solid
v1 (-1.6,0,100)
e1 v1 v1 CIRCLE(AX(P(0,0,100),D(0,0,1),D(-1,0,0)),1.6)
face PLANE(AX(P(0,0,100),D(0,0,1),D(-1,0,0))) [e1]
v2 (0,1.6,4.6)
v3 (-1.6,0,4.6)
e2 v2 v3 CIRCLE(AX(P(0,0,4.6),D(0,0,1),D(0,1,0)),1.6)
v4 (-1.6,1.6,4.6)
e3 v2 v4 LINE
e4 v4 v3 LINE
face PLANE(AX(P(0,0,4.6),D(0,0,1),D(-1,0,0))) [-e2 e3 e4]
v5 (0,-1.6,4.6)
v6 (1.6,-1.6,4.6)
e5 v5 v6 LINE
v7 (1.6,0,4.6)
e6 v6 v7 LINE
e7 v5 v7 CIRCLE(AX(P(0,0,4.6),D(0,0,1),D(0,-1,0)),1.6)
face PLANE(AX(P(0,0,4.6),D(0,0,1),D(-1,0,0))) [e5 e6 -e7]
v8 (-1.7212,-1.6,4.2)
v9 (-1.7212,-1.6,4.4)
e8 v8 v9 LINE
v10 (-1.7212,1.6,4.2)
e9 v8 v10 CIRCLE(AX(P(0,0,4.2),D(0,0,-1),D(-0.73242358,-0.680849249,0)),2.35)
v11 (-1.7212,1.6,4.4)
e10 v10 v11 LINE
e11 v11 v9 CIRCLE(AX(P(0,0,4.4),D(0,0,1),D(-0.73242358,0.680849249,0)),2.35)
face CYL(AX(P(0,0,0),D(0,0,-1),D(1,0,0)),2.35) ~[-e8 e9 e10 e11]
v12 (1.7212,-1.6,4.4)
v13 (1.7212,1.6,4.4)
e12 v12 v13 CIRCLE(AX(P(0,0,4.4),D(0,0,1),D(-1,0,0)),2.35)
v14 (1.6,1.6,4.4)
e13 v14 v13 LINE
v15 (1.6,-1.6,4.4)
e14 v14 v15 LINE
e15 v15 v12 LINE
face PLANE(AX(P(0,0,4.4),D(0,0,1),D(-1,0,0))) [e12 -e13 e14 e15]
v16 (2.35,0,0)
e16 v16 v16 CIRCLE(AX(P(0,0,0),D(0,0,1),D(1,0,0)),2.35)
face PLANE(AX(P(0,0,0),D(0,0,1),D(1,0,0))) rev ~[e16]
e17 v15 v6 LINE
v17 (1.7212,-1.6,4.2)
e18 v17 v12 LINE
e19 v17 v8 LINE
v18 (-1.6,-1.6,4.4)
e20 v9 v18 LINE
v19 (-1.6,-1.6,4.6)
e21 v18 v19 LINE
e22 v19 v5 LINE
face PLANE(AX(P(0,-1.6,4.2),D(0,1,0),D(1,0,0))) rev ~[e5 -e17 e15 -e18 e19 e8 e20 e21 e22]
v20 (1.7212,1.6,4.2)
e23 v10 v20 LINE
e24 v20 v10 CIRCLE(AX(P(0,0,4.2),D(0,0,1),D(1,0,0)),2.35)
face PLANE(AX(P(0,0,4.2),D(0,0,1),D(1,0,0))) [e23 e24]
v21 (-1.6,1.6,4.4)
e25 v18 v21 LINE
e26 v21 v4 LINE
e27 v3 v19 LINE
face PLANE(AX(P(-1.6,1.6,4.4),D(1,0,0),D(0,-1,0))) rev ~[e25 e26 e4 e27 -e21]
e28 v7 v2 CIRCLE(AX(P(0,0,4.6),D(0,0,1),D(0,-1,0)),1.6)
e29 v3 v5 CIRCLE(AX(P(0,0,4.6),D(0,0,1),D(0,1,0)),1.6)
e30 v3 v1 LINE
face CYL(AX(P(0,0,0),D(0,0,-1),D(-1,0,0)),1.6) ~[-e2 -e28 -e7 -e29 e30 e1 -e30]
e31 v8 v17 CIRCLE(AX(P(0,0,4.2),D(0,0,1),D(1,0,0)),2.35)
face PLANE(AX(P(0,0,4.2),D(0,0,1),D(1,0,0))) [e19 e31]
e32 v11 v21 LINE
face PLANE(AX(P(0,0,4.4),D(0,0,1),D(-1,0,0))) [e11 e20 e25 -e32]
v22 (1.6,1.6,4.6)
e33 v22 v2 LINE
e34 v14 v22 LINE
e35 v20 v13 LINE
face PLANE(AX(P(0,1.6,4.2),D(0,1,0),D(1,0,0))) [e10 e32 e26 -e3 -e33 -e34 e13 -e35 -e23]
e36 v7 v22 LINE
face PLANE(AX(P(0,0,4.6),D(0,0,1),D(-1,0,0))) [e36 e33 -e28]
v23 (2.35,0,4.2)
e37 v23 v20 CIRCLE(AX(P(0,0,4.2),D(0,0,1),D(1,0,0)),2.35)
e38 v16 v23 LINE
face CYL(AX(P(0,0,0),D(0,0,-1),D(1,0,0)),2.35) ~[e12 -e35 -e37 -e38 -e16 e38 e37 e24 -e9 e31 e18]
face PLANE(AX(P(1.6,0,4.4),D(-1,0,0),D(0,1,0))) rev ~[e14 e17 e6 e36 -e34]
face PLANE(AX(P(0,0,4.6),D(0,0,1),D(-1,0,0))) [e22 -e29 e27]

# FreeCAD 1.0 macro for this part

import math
import FreeCAD as App
import Part
import Sketcher

V = App.Vector

doc = App.newDocument("Part")
params = doc.addObject("Spreadsheet::Sheet", "Params")
for row, (alias, value) in enumerate([
    ("sketch1_diameter", "4.7 mm"),
    ("pad1_length", "4.2 mm"),
    ("sketch2_diameter", "3.2 mm"),
    ("pad2_length", "100 mm"),
    ("sketch3_radius", "1.6 mm"),
    ("sketch3_radius2", "2.35 mm"),
    ("pad3_length", "0.2 mm"),
    ("sketch4_radius", "1.6 mm"),
    ("pad4_length", "0.2 mm"),
], start=1):
    params.set(f"A{row}", alias)
    params.set(f"B{row}", "=" + value)
    params.setAlias(f"B{row}", alias)

body = doc.addObject("PartDesign::Body", "Body")

# Sketch on XY plane
sketch1 = body.newObject("Sketcher::SketchObject", "Sketch")
sketch1.AttachmentSupport = (doc.getObject("XY_Plane"), [""])
sketch1.MapMode = "FlatFace"
sketch1.addGeometry(Part.Circle(V(0, 0, 0), V(0, 0, 1), 2.4), False)
sketch1.addConstraint([
    Sketcher.Constraint("Coincident", 0, 3, -1, 1),
    Sketcher.Constraint("Diameter", 0, 4.7),
])
sketch1.setExpression("Constraints[1]", "Params.sketch1_diameter")
pad1 = body.newObject("PartDesign::Pad", "Pad")
pad1.Profile = sketch1
pad1.setExpression("Length", "Params.pad1_length")

# Sketch on XY plane
sketch2 = body.newObject("Sketcher::SketchObject", "Sketch001")
sketch2.AttachmentSupport = (doc.getObject("XY_Plane"), [""])
sketch2.MapMode = "FlatFace"
sketch2.addGeometry(Part.Circle(V(0, 0, 0), V(0, 0, 1), 1.6), False)
sketch2.addConstraint([
    Sketcher.Constraint("Coincident", 0, 3, -1, 1),
    Sketcher.Constraint("Diameter", 0, 3.2),
])
sketch2.setExpression("Constraints[1]", "Params.sketch2_diameter")
pad2 = body.newObject("PartDesign::Pad", "Pad001")
pad2.Profile = sketch2
pad2.setExpression("Length", "Params.pad2_length")

# Sketch on XY plane
sketch3 = body.newObject("Sketcher::SketchObject", "Sketch002")
sketch3.AttachmentSupport = (doc.getObject("XY_Plane"), [""])
sketch3.MapMode = "FlatFace"
sketch3.AttachmentOffset = App.Placement(V(0, 0, 4.2), App.Rotation())
sketch3.addGeometry([
    Part.ArcOfCircle(Part.Circle(V(0, 0, 0), V(0, 0, 1), 1.6), math.radians(90), math.radians(270)),  # 0
    Part.LineSegment(V(0, 1.6, 0), V(-1.7, 1.6, 0)),  # 1
    Part.ArcOfCircle(Part.Circle(V(0, 0, 0), V(0, 0, 1), 2.4), math.radians(137), math.radians(223)),  # 2
    Part.LineSegment(V(-1.7, -1.6, 0), V(0, -1.6, 0)),  # 3
    Part.ArcOfCircle(Part.Circle(V(0, 0, 0), V(0, 0, 1), 1.6), math.radians(-90), math.radians(90)),  # 4
    Part.LineSegment(V(0, -1.6, 0), V(1.7, -1.6, 0)),  # 5
    Part.ArcOfCircle(Part.Circle(V(0, 0, 0), V(0, 0, 1), 2.4), math.radians(-43), math.radians(43)),  # 6
    Part.LineSegment(V(1.7, 1.6, 0), V(0, 1.6, 0)),  # 7
], False)
sketch3.addConstraint([
    Sketcher.Constraint("Tangent", 0, 1, 1, 1),
    Sketcher.Constraint("Coincident", 1, 2, 2, 1),
    Sketcher.Constraint("Coincident", 2, 2, 3, 1),
    Sketcher.Constraint("Tangent", 3, 2, 0, 2),
    Sketcher.Constraint("Tangent", 4, 1, 5, 1),
    Sketcher.Constraint("Coincident", 5, 2, 6, 1),
    Sketcher.Constraint("Coincident", 6, 2, 7, 1),
    Sketcher.Constraint("Tangent", 7, 2, 4, 2),
    Sketcher.Constraint("Horizontal", 1),
    Sketcher.Constraint("Horizontal", 3),
    Sketcher.Constraint("Horizontal", 5),
    Sketcher.Constraint("Horizontal", 7),
    Sketcher.Constraint("Coincident", 0, 3, -1, 1),
    Sketcher.Constraint("Coincident", 2, 3, -1, 1),
    Sketcher.Constraint("Coincident", 4, 3, -1, 1),
    Sketcher.Constraint("Coincident", 6, 3, -1, 1),
    Sketcher.Constraint("Equal", 0, 4),
    Sketcher.Constraint("Equal", 2, 6),
    Sketcher.Constraint("Radius", 0, 1.6),
    Sketcher.Constraint("Radius", 2, 2.35),
])
sketch3.setExpression("Constraints[18]", "Params.sketch3_radius")
sketch3.setExpression("Constraints[19]", "Params.sketch3_radius2")
pad3 = body.newObject("PartDesign::Pad", "Pad002")
pad3.Profile = sketch3
pad3.setExpression("Length", "Params.pad3_length")

# Sketch on XY plane
sketch4 = body.newObject("Sketcher::SketchObject", "Sketch003")
sketch4.AttachmentSupport = (doc.getObject("XY_Plane"), [""])
sketch4.MapMode = "FlatFace"
sketch4.AttachmentOffset = App.Placement(V(0, 0, 4.4), App.Rotation())
sketch4.addGeometry([
    Part.LineSegment(V(0, 1.6, 0), V(-1.6, 1.6, 0)),  # 0
    Part.LineSegment(V(-1.6, 1.6, 0), V(-1.6, 0, 0)),  # 1
    Part.ArcOfCircle(Part.Circle(V(0, 0, 0), V(0, 0, 1), 1.6), math.radians(90), math.radians(180)),  # 2
    Part.LineSegment(V(-1.6, 0, 0), V(-1.6, -1.6, 0)),  # 3
    Part.LineSegment(V(-1.6, -1.6, 0), V(0, -1.6, 0)),  # 4
    Part.ArcOfCircle(Part.Circle(V(0, 0, 0), V(0, 0, 1), 1.6), math.radians(180), math.radians(270)),  # 5
    Part.LineSegment(V(1.6, 1.6, 0), V(0, 1.6, 0)),  # 6
    Part.ArcOfCircle(Part.Circle(V(0, 0, 0), V(0, 0, 1), 1.6), math.radians(0), math.radians(90)),  # 7
    Part.LineSegment(V(1.6, 0, 0), V(1.6, 1.6, 0)),  # 8
    Part.ArcOfCircle(Part.Circle(V(0, 0, 0), V(0, 0, 1), 1.6), math.radians(-90), math.radians(0)),  # 9
    Part.LineSegment(V(0, -1.6, 0), V(1.6, -1.6, 0)),  # 10
    Part.LineSegment(V(1.6, -1.6, 0), V(1.6, 0, 0)),  # 11
], False)
sketch4.addConstraint([
    Sketcher.Constraint("Coincident", 0, 2, 1, 1),
    Sketcher.Constraint("Tangent", 1, 2, 2, 2),
    Sketcher.Constraint("Tangent", 2, 1, 0, 1),
    Sketcher.Constraint("Coincident", 3, 2, 4, 1),
    Sketcher.Constraint("Tangent", 4, 2, 5, 2),
    Sketcher.Constraint("Tangent", 5, 1, 3, 1),
    Sketcher.Constraint("Tangent", 6, 2, 7, 2),
    Sketcher.Constraint("Tangent", 7, 1, 8, 1),
    Sketcher.Constraint("Coincident", 8, 2, 6, 1),
    Sketcher.Constraint("Tangent", 9, 1, 10, 1),
    Sketcher.Constraint("Coincident", 10, 2, 11, 1),
    Sketcher.Constraint("Tangent", 11, 2, 9, 2),
    Sketcher.Constraint("Horizontal", 0),
    Sketcher.Constraint("Vertical", 1),
    Sketcher.Constraint("Vertical", 3),
    Sketcher.Constraint("Horizontal", 4),
    Sketcher.Constraint("Horizontal", 6),
    Sketcher.Constraint("Vertical", 8),
    Sketcher.Constraint("Horizontal", 10),
    Sketcher.Constraint("Vertical", 11),
    Sketcher.Constraint("Coincident", 2, 3, -1, 1),
    Sketcher.Constraint("Coincident", 5, 3, -1, 1),
    Sketcher.Constraint("Coincident", 7, 3, -1, 1),
    Sketcher.Constraint("Coincident", 9, 3, -1, 1),
    Sketcher.Constraint("Equal", 2, 5),
    Sketcher.Constraint("Equal", 5, 7),
    Sketcher.Constraint("Equal", 7, 9),
    Sketcher.Constraint("Radius", 2, 1.6),
])
sketch4.setExpression("Constraints[27]", "Params.sketch4_radius")
pad4 = body.newObject("PartDesign::Pad", "Pad003")
pad4.Profile = sketch4
pad4.setExpression("Length", "Params.pad4_length")

doc.recompute()
